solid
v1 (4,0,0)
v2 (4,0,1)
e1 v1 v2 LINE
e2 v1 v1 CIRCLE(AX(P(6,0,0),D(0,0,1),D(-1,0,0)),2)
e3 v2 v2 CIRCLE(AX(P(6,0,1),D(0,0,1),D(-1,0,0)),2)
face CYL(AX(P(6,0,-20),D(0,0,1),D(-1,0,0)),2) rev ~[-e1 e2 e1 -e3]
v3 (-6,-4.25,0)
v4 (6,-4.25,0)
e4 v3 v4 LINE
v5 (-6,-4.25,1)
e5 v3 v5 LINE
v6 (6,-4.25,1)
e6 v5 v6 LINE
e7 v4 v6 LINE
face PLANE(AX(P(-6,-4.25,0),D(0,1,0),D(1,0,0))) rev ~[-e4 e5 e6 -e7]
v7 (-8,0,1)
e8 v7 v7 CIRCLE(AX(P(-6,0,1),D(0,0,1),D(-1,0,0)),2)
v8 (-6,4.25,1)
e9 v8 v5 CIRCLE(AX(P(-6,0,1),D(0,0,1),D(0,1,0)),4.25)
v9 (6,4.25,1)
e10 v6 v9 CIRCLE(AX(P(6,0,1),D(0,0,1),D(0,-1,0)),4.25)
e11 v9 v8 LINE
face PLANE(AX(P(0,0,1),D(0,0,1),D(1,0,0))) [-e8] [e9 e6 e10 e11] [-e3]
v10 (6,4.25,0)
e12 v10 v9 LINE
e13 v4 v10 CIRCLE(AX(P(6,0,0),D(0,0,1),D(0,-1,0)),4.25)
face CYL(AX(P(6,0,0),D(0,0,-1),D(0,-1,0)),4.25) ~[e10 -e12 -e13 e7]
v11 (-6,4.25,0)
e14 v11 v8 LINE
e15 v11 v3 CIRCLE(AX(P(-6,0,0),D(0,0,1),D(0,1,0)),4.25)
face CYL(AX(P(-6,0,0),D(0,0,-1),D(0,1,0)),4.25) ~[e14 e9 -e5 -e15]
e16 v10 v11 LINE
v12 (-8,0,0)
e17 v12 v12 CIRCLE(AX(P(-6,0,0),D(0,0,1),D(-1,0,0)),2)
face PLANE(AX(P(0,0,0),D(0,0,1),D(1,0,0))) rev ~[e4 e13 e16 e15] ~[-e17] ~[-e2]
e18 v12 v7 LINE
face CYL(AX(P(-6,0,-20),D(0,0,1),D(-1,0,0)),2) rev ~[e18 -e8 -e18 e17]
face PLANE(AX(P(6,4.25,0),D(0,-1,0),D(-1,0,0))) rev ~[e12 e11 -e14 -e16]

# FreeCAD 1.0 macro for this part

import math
import FreeCAD as App
import Part
import Sketcher

V = App.Vector

doc = App.newDocument("Part")
body = doc.addObject("PartDesign::Body", "Body")

sketch1 = body.newObject("Sketcher::SketchObject", "Sketch")
sketch1.AttachmentSupport = (doc.getObject("XY_Plane"), [""])
sketch1.MapMode = "FlatFace"
sketch1.addGeometry([
    Part.ArcOfCircle(Part.Circle(V(-6, 0, 0), V(0, 0, 1), 4.2), math.radians(90), math.radians(270)),
    Part.LineSegment(V(-6, -4.2, 0), V(6, -4.2, 0)),
    Part.ArcOfCircle(Part.Circle(V(6, 0, 0), V(0, 0, 1), 4.2), math.radians(-90), math.radians(90)),
    Part.LineSegment(V(6, 4.2, 0), V(-6, 4.2, 0)),
], False)
sketch1.addConstraint([
    Sketcher.Constraint("Tangent", 0, 2, 1, 1),
    Sketcher.Constraint("Tangent", 1, 2, 2, 1),
    Sketcher.Constraint("Tangent", 2, 2, 3, 1),
    Sketcher.Constraint("Tangent", 3, 2, 0, 1),
    Sketcher.Constraint("Horizontal", 1),
    Sketcher.Constraint("Horizontal", 3),
    Sketcher.Constraint("Symmetric", 0, 3, 2, 3, -1, 1),
    Sketcher.Constraint("DistanceX", 1, 1, 1, 2, 12.0),
    Sketcher.Constraint("Radius", 0, 4.25),
])
pad1 = body.newObject("PartDesign::Pad", "Pad")
pad1.Profile = sketch1
pad1.Length = 1

sketch2 = body.newObject("Sketcher::SketchObject", "Sketch001")
sketch2.AttachmentSupport = (doc.getObject("XY_Plane"), [""])
sketch2.MapMode = "FlatFace"
sketch2.addGeometry([
    Part.Circle(V(-6, 0, 0), V(0, 0, 1), 2),
    Part.Circle(V(6, 0, 0), V(0, 0, 1), 2),
], False)
sketch2.addConstraint([
    Sketcher.Constraint("Equal", 0, 1),
    Sketcher.Constraint("Symmetric", 0, 3, 1, 3, -1, 1),
    Sketcher.Constraint("PointOnObject", 0, 3, -1),
    Sketcher.Constraint("Diameter", 0, 4.0),
    Sketcher.Constraint("DistanceX", 0, 3, -1, 1, 6.0),
])
doc.recompute()
hole = body.newObject("PartDesign::Hole", "Hole")
hole.Profile = sketch2
hole.ThreadType = "None"
hole.Diameter = 4
hole.DepthType = "Dimension"
hole.Depth = 20
hole.DrillPoint = "Flat"
hole.Reversed = True

doc.recompute()
